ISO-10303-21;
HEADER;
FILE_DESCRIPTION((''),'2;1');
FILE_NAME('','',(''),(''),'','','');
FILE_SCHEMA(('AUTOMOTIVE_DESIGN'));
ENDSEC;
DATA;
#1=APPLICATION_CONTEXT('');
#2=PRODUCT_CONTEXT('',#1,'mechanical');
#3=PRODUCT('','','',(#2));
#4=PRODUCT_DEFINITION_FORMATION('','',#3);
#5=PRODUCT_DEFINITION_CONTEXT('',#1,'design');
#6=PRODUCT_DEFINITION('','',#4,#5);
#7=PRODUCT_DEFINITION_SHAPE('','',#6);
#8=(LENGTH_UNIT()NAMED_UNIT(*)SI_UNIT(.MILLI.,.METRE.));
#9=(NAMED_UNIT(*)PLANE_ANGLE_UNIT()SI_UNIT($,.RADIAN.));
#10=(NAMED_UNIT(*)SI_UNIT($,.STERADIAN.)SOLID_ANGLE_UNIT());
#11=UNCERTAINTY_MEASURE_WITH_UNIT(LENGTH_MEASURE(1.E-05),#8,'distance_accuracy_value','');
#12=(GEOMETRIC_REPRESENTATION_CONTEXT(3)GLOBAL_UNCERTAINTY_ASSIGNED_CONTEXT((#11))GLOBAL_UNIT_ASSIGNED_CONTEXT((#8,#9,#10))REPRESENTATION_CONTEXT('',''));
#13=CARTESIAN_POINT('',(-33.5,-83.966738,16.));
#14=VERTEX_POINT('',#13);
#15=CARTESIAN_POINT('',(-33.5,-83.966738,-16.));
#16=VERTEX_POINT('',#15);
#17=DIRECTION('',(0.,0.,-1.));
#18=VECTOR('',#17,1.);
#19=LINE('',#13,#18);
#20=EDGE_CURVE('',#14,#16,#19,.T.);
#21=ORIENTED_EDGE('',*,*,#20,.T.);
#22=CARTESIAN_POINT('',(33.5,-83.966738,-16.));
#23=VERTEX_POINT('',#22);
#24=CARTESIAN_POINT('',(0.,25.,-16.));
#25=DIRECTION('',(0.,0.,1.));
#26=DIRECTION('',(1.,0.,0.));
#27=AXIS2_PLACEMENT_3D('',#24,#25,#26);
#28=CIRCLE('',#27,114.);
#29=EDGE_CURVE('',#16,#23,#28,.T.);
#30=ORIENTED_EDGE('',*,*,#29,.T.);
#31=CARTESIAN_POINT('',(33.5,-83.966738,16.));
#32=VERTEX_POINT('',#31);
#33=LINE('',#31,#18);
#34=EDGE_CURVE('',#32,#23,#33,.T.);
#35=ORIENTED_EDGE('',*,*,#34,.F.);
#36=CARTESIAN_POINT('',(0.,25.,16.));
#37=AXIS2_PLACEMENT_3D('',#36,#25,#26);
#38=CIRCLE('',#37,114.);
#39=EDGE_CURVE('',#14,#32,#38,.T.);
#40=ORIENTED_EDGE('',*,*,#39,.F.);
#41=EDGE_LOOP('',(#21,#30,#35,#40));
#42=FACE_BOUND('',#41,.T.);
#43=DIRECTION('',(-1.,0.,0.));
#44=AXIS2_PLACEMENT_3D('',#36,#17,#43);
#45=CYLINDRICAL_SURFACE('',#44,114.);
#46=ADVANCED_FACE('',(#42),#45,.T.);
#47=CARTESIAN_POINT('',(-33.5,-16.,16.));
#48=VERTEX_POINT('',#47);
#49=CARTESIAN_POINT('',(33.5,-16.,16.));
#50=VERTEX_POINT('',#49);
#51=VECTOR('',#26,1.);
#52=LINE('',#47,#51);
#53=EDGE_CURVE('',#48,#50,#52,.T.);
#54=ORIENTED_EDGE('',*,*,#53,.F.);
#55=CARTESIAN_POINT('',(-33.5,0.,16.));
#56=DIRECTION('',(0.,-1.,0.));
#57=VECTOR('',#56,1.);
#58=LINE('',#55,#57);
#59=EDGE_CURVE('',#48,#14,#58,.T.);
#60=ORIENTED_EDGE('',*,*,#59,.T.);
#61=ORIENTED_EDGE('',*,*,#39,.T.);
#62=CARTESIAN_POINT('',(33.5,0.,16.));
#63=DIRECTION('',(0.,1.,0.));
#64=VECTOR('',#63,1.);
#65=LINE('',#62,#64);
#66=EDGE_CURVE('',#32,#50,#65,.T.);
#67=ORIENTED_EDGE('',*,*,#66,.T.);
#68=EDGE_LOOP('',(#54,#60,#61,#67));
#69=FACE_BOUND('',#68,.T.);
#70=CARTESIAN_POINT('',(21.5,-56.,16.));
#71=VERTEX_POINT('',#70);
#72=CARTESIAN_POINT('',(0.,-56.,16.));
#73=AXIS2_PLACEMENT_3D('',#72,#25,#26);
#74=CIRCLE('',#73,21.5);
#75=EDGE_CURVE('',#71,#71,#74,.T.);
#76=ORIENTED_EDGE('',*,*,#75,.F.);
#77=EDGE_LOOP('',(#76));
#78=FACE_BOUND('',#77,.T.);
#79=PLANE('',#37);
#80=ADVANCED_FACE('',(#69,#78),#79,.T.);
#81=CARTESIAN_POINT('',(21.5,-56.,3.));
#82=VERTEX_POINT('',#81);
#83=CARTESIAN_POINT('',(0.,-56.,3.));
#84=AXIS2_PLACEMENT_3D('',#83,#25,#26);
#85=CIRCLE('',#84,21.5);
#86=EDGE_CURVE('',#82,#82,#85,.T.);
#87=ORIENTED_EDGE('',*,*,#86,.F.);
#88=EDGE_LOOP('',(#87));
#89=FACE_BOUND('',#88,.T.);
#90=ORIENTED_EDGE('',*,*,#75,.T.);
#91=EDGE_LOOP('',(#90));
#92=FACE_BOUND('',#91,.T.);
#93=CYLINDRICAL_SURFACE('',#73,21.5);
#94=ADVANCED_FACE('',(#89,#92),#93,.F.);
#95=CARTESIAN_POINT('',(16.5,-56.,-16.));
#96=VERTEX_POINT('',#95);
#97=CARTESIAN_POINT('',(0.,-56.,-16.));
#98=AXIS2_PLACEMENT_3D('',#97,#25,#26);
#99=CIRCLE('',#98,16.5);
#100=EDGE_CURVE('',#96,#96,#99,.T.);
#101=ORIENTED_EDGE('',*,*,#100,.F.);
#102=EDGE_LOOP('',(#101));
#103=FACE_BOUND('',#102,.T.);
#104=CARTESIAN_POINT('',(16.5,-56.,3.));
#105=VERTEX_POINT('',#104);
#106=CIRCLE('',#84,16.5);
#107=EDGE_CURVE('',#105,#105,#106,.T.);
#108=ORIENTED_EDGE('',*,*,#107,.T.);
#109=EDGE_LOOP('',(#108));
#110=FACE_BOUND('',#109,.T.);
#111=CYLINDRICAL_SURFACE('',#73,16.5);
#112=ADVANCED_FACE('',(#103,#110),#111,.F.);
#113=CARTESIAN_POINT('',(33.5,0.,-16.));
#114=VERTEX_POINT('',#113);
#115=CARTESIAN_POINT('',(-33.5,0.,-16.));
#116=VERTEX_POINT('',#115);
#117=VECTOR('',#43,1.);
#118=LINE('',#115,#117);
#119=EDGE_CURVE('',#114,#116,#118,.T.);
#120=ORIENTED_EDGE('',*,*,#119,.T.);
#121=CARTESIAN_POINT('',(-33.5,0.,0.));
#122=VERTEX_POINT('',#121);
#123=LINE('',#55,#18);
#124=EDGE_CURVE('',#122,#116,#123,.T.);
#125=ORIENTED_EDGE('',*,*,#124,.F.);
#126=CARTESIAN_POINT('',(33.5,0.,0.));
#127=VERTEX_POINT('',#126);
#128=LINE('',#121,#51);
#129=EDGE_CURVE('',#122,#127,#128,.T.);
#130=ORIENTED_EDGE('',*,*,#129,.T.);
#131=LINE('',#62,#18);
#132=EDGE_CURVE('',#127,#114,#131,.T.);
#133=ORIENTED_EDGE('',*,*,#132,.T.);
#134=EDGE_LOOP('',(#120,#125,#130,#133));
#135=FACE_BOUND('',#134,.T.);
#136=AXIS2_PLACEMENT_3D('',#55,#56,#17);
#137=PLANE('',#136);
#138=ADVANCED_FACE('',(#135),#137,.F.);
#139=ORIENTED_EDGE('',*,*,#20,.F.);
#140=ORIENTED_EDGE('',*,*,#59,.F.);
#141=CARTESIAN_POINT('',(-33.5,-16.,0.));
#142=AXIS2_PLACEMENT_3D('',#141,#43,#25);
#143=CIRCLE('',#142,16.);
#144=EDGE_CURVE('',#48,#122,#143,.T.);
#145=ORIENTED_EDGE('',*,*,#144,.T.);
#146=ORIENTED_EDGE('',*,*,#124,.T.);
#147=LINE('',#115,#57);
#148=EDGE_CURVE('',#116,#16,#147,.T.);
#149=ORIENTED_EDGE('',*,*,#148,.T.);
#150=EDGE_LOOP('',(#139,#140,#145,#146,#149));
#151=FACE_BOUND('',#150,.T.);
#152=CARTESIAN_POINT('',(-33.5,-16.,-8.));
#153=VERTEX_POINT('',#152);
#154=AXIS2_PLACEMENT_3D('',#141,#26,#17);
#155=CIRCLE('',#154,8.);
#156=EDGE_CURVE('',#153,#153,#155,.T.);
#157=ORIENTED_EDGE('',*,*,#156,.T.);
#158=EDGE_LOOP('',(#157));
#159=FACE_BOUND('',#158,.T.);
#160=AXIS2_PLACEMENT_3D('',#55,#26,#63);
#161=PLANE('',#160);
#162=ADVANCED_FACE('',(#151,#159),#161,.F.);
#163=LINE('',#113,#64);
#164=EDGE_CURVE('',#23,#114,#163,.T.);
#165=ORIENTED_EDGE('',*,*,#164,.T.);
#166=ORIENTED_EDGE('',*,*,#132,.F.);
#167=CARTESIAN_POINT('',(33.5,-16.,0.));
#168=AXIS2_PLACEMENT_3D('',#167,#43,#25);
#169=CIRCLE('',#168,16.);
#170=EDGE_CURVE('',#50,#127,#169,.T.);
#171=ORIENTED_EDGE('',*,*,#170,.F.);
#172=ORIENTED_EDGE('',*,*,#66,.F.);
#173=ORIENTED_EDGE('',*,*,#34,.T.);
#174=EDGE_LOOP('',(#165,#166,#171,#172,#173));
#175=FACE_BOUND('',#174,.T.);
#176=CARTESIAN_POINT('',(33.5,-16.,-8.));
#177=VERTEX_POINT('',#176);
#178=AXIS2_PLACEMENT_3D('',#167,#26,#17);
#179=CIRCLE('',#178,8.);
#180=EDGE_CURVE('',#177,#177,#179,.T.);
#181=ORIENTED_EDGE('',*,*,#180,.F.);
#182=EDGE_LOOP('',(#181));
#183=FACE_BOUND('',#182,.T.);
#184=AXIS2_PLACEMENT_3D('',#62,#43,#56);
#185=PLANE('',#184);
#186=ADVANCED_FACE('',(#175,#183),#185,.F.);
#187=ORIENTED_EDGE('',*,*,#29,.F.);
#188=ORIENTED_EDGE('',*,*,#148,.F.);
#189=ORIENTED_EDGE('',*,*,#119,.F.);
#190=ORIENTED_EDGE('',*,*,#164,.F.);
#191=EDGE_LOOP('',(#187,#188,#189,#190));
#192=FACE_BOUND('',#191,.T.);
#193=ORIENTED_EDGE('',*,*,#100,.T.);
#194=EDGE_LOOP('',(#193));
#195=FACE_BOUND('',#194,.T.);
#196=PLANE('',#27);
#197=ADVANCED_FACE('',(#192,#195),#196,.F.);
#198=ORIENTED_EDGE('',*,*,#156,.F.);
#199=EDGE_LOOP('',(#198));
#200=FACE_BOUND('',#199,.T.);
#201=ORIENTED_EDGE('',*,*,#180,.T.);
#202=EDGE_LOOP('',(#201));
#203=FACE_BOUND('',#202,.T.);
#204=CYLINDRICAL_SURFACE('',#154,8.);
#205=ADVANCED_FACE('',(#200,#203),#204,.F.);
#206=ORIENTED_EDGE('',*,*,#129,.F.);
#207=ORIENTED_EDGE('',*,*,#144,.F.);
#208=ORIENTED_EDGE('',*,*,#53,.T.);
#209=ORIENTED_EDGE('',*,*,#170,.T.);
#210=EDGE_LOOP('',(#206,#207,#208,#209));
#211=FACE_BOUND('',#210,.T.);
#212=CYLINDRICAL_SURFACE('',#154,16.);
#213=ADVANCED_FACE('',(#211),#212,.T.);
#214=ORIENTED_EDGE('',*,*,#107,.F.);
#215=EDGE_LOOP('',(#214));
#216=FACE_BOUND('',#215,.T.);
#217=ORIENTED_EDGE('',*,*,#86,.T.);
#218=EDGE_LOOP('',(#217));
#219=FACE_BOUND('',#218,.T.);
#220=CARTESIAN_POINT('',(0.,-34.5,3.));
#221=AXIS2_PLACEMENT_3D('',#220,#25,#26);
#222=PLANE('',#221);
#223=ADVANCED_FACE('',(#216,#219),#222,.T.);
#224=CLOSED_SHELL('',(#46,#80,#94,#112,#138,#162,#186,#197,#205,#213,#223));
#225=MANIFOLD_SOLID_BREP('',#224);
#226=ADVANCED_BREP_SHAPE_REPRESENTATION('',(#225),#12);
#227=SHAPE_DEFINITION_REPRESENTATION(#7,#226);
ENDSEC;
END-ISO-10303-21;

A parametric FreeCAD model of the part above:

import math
import FreeCAD as App
import Part
import Sketcher
from FreeCAD import Vector
Q = App.Units.Quantity

doc = App.newDocument("Part")
body = doc.addObject("PartDesign::Body", "Body")

# Sketch on XY plane
sketch1 = body.newObject("Sketcher::SketchObject", "Sketch")
sketch1.AttachmentSupport = (doc.getObject("XY_Plane"), [""])
sketch1.MapMode = "FlatFace"
sketch1.addGeometry(Part.LineSegment(Vector(34, 0, 0), Vector(-34, 0, 0)), False)
sketch1.addGeometry(Part.LineSegment(Vector(-34, 0, 0), Vector(-34, -84, 0)), False)
sketch1.addGeometry(Part.ArcOfCircle(Part.Circle(Vector(0, 25, 0), Vector(0, 0, 1), 114), math.radians(-107), math.radians(-73)), False)
sketch1.addGeometry(Part.LineSegment(Vector(34, -84, 0), Vector(34, 0, 0)), False)
sketch1.addConstraint(Sketcher.Constraint("Coincident", 0, 2, 1, 1))
sketch1.addConstraint(Sketcher.Constraint("Coincident", 1, 2, 2, 1))
sketch1.addConstraint(Sketcher.Constraint("Coincident", 2, 2, 3, 1))
sketch1.addConstraint(Sketcher.Constraint("Coincident", 3, 2, 0, 1))
sketch1.addConstraint(Sketcher.Constraint("Horizontal", 0))
sketch1.addConstraint(Sketcher.Constraint("Vertical", 1))
sketch1.addConstraint(Sketcher.Constraint("Vertical", 3))
sketch1.addConstraint(Sketcher.Constraint("Symmetric", 0, 2, 3, 2, -1, 1))
sketch1.addConstraint(Sketcher.Constraint("PointOnObject", 2, 3, -2))
sketch1.addConstraint(Sketcher.Constraint("Radius", 2, Q("114 mm")))
sketch1.addConstraint(Sketcher.Constraint("DistanceX", 0, 2, 0, 1, Q("67 mm")))
sketch1.addConstraint(Sketcher.Constraint("DistanceY", -1, 1, 2, 3, Q("25 mm")))
pad1 = body.newObject("PartDesign::Pad", "Pad")
pad1.Profile = sketch1
pad1.Length = 32
pad1.Midplane = True

# Sketch on YZ plane
sketch2 = body.newObject("Sketcher::SketchObject", "Sketch001")
sketch2.AttachmentSupport = (doc.getObject("YZ_Plane"), [""])
sketch2.MapMode = "FlatFace"
sketch2.addGeometry(Part.LineSegment(Vector(0, 16, 0), Vector(-16, 16, 0)), False)
sketch2.addGeometry(Part.ArcOfCircle(Part.Circle(Vector(-16, 0, 0), Vector(0, 0, 1), 16), math.radians(0), math.radians(90)), False)
sketch2.addGeometry(Part.LineSegment(Vector(0, 0, 0), Vector(0, 16, 0)), False)
sketch2.addConstraint(Sketcher.Constraint("Tangent", 0, 2, 1, 2))
sketch2.addConstraint(Sketcher.Constraint("Tangent", 1, 1, 2, 1))
sketch2.addConstraint(Sketcher.Constraint("Coincident", 2, 2, 0, 1))
sketch2.addConstraint(Sketcher.Constraint("Horizontal", 0))
sketch2.addConstraint(Sketcher.Constraint("Vertical", 2))
sketch2.addConstraint(Sketcher.Constraint("Coincident", 1, 1, -1, 1))
sketch2.addConstraint(Sketcher.Constraint("Radius", 1, Q("16 mm")))
pocket1 = body.newObject("PartDesign::Pocket", "Pocket")
pocket1.Profile = sketch2
pocket1.Type = "ThroughAll"
pocket1.Midplane = True

# Sketch on YZ plane
sketch3 = body.newObject("Sketcher::SketchObject", "Sketch002")
sketch3.AttachmentSupport = (doc.getObject("YZ_Plane"), [""])
sketch3.MapMode = "FlatFace"
sketch3.addGeometry(Part.Circle(Vector(-16, 0, 0), Vector(0, 0, 1), 8), False)
sketch3.addConstraint(Sketcher.Constraint("PointOnObject", 0, 3, -1))
sketch3.addConstraint(Sketcher.Constraint("Diameter", 0, Q("16 mm")))
sketch3.addConstraint(Sketcher.Constraint("DistanceX", 0, 3, -1, 1, Q("16 mm")))
pocket2 = body.newObject("PartDesign::Pocket", "Pocket001")
pocket2.Profile = sketch3
pocket2.Type = "ThroughAll"
pocket2.Midplane = True

# Sketch on YZ plane
sketch4 = body.newObject("Sketcher::SketchObject", "Sketch003")
sketch4.AttachmentSupport = (doc.getObject("YZ_Plane"), [""])
sketch4.MapMode = "FlatFace"
sketch4.addGeometry(Part.LineSegment(Vector(-34, 3, 0), Vector(-34, 16, 0)), False)
sketch4.addGeometry(Part.LineSegment(Vector(-34, 16, 0), Vector(-56, 16, 0)), False)
sketch4.addGeometry(Part.LineSegment(Vector(-56, 16, 0), Vector(-56, -16, 0)), False)
sketch4.addGeometry(Part.LineSegment(Vector(-56, -16, 0), Vector(-40, -16, 0)), False)
sketch4.addGeometry(Part.LineSegment(Vector(-40, -16, 0), Vector(-40, 3, 0)), False)
sketch4.addGeometry(Part.LineSegment(Vector(-40, 3, 0), Vector(-34, 3, 0)), False)
sketch4.addGeometry(Part.LineSegment(Vector(-56, 16, 0), Vector(-56, -16, 0)), True)  # axis
sketch4.addConstraint(Sketcher.Constraint("Coincident", 0, 2, 1, 1))
sketch4.addConstraint(Sketcher.Constraint("Coincident", 1, 2, 2, 1))
sketch4.addConstraint(Sketcher.Constraint("Coincident", 2, 2, 3, 1))
sketch4.addConstraint(Sketcher.Constraint("Coincident", 3, 2, 4, 1))
sketch4.addConstraint(Sketcher.Constraint("Coincident", 4, 2, 5, 1))
sketch4.addConstraint(Sketcher.Constraint("Coincident", 5, 2, 0, 1))
sketch4.addConstraint(Sketcher.Constraint("Vertical", 0))
sketch4.addConstraint(Sketcher.Constraint("Horizontal", 1))
sketch4.addConstraint(Sketcher.Constraint("Vertical", 2))
sketch4.addConstraint(Sketcher.Constraint("Horizontal", 3))
sketch4.addConstraint(Sketcher.Constraint("Vertical", 4))
sketch4.addConstraint(Sketcher.Constraint("Horizontal", 5))
sketch4.addConstraint(Sketcher.Constraint("Vertical", 6))
sketch4.addConstraint(Sketcher.Constraint("Coincident", 6, 1, 1, 2))
sketch4.addConstraint(Sketcher.Constraint("Horizontal", 3, 2, 6, 2))
sketch4.addConstraint(Sketcher.Constraint("DistanceX", 5, 1, 5, 2, Q("5 mm")))
sketch4.addConstraint(Sketcher.Constraint("DistanceY", 0, 1, 0, 2, Q("13 mm")))
sketch4.addConstraint(Sketcher.Constraint("DistanceY", 2, 2, 2, 1, Q("32 mm")))
sketch4.addConstraint(Sketcher.Constraint("DistanceX", 1, 2, 1, 1, Q("21.5 mm")))
sketch4.addConstraint(Sketcher.Constraint("DistanceY", -1, 1, 0, 2, Q("16 mm")))
sketch4.addConstraint(Sketcher.Constraint("DistanceX", 1, 2, -1, 1, Q("56 mm")))
groove = body.newObject("PartDesign::Groove", "Groove")
groove.Profile = sketch4
groove.ReferenceAxis = (sketch4, ["Axis0"])
groove.Angle = 360

doc.recompute()
